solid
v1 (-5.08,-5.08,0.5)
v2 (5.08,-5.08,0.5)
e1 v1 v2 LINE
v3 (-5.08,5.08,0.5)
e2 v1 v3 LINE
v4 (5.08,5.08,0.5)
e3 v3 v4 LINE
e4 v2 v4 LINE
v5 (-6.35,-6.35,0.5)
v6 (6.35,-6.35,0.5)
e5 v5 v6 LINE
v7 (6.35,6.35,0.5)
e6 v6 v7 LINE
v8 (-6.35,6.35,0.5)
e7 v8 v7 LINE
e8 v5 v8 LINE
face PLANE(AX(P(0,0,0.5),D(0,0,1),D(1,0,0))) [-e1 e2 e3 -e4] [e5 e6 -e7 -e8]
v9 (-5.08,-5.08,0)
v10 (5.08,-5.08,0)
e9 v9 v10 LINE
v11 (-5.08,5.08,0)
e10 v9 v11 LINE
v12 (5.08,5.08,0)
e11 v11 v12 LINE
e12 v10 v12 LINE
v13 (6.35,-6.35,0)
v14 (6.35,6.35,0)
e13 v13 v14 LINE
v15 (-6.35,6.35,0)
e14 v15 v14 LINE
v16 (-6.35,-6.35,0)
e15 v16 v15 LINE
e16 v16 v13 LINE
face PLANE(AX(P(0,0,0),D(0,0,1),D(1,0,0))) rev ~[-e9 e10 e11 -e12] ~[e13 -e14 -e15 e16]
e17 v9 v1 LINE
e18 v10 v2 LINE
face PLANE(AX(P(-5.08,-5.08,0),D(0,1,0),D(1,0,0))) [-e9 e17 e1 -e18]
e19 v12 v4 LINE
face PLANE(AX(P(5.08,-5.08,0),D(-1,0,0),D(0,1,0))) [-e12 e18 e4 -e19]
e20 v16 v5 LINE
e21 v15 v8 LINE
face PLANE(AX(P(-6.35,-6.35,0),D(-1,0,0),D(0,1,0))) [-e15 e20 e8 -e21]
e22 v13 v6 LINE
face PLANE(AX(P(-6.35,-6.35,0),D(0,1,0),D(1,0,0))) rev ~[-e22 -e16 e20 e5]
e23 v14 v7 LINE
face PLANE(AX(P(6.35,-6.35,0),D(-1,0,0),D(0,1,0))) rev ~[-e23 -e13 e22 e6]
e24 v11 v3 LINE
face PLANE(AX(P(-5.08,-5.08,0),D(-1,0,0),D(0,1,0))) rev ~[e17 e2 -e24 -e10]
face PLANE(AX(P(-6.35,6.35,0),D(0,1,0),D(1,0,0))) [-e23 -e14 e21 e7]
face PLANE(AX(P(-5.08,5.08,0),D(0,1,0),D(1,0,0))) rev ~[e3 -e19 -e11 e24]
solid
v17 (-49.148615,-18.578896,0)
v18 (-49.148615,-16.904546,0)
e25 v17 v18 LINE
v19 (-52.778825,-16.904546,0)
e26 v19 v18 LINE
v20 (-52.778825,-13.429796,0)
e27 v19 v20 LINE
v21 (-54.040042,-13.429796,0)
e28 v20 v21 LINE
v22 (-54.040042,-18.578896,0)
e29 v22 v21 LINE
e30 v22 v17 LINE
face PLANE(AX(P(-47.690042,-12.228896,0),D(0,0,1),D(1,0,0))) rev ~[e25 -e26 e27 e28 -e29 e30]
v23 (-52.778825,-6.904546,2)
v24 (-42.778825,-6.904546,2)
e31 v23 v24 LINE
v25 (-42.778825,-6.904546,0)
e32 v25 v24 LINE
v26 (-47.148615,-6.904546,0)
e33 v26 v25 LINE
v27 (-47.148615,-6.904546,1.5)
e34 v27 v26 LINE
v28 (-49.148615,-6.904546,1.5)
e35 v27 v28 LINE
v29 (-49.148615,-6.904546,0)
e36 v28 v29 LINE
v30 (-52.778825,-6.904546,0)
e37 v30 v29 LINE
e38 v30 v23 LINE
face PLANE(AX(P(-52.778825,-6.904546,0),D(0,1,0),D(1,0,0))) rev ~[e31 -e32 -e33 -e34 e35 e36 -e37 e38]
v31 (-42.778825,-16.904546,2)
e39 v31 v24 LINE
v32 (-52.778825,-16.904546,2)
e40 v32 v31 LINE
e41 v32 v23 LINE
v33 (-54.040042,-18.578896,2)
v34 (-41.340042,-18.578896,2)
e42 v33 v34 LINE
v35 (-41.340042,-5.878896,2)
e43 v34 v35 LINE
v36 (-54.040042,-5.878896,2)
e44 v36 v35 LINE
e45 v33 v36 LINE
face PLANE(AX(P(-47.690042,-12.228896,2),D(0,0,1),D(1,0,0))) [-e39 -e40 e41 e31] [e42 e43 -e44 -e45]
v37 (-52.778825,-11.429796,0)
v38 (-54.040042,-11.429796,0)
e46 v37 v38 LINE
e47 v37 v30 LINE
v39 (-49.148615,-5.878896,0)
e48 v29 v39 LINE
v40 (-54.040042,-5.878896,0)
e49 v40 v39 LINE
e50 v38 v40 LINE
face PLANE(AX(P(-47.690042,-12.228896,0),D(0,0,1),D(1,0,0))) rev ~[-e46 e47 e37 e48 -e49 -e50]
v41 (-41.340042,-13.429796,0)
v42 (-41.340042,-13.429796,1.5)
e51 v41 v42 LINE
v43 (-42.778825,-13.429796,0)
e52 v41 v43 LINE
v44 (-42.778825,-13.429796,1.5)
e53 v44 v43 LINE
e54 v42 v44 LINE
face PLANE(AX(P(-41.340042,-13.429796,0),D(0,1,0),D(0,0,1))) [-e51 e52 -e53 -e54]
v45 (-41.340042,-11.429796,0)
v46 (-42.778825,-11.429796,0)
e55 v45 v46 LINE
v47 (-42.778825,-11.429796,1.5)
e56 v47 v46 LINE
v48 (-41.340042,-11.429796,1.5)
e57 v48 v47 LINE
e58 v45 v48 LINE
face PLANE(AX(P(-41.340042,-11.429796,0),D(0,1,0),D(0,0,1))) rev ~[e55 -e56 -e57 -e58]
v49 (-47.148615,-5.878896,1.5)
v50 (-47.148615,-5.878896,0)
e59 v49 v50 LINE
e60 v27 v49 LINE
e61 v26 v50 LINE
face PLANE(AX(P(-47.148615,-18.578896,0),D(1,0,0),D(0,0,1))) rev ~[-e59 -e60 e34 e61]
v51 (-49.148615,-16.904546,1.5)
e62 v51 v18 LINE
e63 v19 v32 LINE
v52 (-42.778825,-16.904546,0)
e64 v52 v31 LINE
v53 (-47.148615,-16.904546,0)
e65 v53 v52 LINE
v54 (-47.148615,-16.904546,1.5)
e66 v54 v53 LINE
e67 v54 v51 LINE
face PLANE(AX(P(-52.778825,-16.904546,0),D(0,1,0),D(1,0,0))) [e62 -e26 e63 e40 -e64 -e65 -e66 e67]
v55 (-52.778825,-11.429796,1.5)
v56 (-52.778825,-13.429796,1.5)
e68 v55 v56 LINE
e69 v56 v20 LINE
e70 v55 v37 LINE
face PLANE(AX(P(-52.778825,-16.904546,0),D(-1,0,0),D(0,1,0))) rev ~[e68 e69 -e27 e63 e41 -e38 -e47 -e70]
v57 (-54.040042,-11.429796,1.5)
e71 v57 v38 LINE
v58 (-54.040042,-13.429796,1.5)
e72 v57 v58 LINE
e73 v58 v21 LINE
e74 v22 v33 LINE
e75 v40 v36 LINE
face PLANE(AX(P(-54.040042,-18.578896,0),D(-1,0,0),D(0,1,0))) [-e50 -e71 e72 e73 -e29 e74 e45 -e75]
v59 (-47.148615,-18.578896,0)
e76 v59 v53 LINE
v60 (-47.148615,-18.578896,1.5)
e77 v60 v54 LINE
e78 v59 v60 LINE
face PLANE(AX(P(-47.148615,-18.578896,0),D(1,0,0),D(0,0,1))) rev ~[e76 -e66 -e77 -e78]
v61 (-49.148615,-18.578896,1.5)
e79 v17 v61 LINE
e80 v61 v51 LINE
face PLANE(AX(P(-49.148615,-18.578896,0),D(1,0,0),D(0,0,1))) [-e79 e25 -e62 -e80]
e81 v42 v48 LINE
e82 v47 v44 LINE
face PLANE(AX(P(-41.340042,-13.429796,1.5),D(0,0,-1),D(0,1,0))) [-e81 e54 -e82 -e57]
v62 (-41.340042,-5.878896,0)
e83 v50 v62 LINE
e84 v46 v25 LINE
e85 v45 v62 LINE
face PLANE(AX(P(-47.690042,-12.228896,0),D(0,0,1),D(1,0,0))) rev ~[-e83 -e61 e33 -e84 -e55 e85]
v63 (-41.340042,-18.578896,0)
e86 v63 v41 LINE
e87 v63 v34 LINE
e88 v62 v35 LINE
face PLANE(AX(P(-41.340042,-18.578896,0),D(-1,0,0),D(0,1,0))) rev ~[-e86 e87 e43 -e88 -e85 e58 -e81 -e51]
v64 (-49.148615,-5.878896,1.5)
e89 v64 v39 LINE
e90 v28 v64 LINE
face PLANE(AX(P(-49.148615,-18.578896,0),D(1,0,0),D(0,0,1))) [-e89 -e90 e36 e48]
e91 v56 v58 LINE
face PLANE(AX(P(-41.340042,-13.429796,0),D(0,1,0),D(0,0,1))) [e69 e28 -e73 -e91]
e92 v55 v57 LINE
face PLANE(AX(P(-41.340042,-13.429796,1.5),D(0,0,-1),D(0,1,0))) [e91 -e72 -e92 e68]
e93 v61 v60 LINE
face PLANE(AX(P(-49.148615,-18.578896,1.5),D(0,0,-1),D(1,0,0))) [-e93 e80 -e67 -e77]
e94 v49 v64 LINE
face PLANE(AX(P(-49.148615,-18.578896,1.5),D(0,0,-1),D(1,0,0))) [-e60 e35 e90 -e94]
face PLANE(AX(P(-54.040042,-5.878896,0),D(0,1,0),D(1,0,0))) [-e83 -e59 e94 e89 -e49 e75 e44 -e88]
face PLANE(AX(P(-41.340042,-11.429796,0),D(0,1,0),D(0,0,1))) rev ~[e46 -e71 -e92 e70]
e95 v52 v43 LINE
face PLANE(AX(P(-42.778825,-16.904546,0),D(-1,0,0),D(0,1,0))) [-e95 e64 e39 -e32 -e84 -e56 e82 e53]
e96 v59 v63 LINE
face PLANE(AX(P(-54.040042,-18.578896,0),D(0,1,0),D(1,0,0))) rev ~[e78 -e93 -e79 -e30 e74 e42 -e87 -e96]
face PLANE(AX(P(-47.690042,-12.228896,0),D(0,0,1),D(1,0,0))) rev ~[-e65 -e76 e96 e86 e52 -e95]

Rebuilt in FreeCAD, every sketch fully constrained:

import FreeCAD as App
import Part
import Sketcher

V = App.Vector


def add_polygon(sketch, points):
    """Adds a closed chain of lines whose ends are joined by coincident constraints."""
    first, n = sketch.GeometryCount, len(points)
    for a, b in zip(points, points[1:] + points[:1]):
        sketch.addGeometry(Part.LineSegment(App.Vector(*a, 0), App.Vector(*b, 0)), False)
    for i in range(n):
        sketch.addConstraint(Sketcher.Constraint("Coincident", first + i, 2, first + (i + 1) % n, 1))

doc = App.newDocument("Part")
params = doc.addObject("Spreadsheet::Sheet", "Params")
for row, (alias, value) in enumerate([
    ("sketch1_width", "12.7 mm"),
    ("sketch1_width2", "10.16 mm"),
    ("pad1_length", "0.5 mm"),
    ("sketch2_width", "10 mm"),
    ("sketch2_width2", "12.7 mm"),
    ("pad2_length", "2 mm"),
    ("sketch3_width", "2 mm"),
    ("sketch3_height", "1.5 mm"),
    ("pocket1_length", "25 mm"),
    ("sketch4_width", "2 mm"),
    ("sketch4_height", "1.5 mm"),
    ("pocket2_length", "25 mm"),
], start=1):
    params.set(f"A{row}", alias)
    params.set(f"B{row}", "=" + value)
    params.setAlias(f"B{row}", alias)

body = doc.addObject("PartDesign::Body", "Body")

# Sketch on XY plane
sketch1 = body.newObject("Sketcher::SketchObject", "Sketch")
sketch1.AttachmentSupport = (doc.getObject("XY_Plane"), [""])
sketch1.MapMode = "FlatFace"
add_polygon(sketch1, [(-6.35, 6.35), (-6.35, -6.35), (6.35, -6.35), (6.35, 6.35)])  # lines 0-3
add_polygon(sketch1, [(5.08, -5.08), (-5.08, -5.08), (-5.08, 5.08), (5.08, 5.08)])  # lines 4-7
sketch1.addConstraint([
    Sketcher.Constraint("Vertical", 0),
    Sketcher.Constraint("Horizontal", 1),
    Sketcher.Constraint("Vertical", 2),
    Sketcher.Constraint("Horizontal", 3),
    Sketcher.Constraint("Horizontal", 4),
    Sketcher.Constraint("Vertical", 5),
    Sketcher.Constraint("Horizontal", 6),
    Sketcher.Constraint("Vertical", 7),
    Sketcher.Constraint("Symmetric", 0, 2, 2, 2, -1, 1),
    Sketcher.Constraint("Symmetric", 4, 2, 6, 2, -1, 1),
    Sketcher.Constraint("Equal", 3, 0),
    Sketcher.Constraint("Equal", 6, 5),
    Sketcher.Constraint("DistanceX", 1, 1, 1, 2, 12.7),
    Sketcher.Constraint("DistanceX", 4, 2, 4, 1, 10.16),
])
sketch1.setExpression("Constraints[20]", "Params.sketch1_width")
sketch1.setExpression("Constraints[21]", "Params.sketch1_width2")
pad1 = body.newObject("PartDesign::Pad", "Pad")
pad1.Profile = sketch1
pad1.setExpression("Length", "Params.pad1_length")
body2 = doc.addObject("PartDesign::Body", "Body001")

# Sketch on XY plane
sketch2 = body2.newObject("Sketcher::SketchObject", "Sketch001")
sketch2.AttachmentSupport = (doc.getObject("XY_Plane001"), [""])
sketch2.MapMode = "FlatFace"
add_polygon(sketch2, [(-54.040042, -5.878896), (-54.040042, -18.578896), (-41.340042, -18.578896), (-41.340042, -5.878896)])  # lines 0-3
add_polygon(sketch2, [(-42.778825, -16.904546), (-52.778825, -16.904546), (-52.778825, -6.904546), (-42.778825, -6.904546)])  # lines 4-7
sketch2.addConstraint([
    Sketcher.Constraint("Vertical", 0),
    Sketcher.Constraint("Horizontal", 1),
    Sketcher.Constraint("Vertical", 2),
    Sketcher.Constraint("Horizontal", 3),
    Sketcher.Constraint("Horizontal", 4),
    Sketcher.Constraint("Vertical", 5),
    Sketcher.Constraint("Horizontal", 6),
    Sketcher.Constraint("Vertical", 7),
    Sketcher.Constraint("Equal", 3, 0),
    Sketcher.Constraint("Equal", 6, 5),
    Sketcher.Constraint("DistanceX", 4, 2, 4, 1, 10.0),
    Sketcher.Constraint("DistanceX", 1, 1, 1, 2, 12.7),
    Sketcher.Constraint("DistanceX", 1, 2, -1, 1, 41.340042),
    Sketcher.Constraint("DistanceY", 0, 2, 4, 2, 1.67435),
    Sketcher.Constraint("DistanceY", 0, 2, -1, 1, 18.578896),
    Sketcher.Constraint("DistanceX", 4, 2, -1, 1, 52.778825),
])
sketch2.setExpression("Constraints[18]", "Params.sketch2_width")
sketch2.setExpression("Constraints[19]", "Params.sketch2_width2")
pad2 = body2.newObject("PartDesign::Pad", "Pad001")
pad2.Profile = sketch2
pad2.setExpression("Length", "Params.pad2_length")

# Sketch on YZ plane
sketch3 = body2.newObject("Sketcher::SketchObject", "Sketch002")
sketch3.AttachmentSupport = (doc.getObject("YZ_Plane001"), [""])
sketch3.MapMode = "FlatFace"
sketch3.AttachmentOffset = App.Placement(V(0, 0, -41.340042), App.Rotation())
add_polygon(sketch3, [(-13.429796, 1.5), (-13.429796, 0), (-11.429796, 0), (-11.429796, 1.5)])  # lines 0-3
sketch3.addConstraint([
    Sketcher.Constraint("Vertical", 0),
    Sketcher.Constraint("Horizontal", 1),
    Sketcher.Constraint("Vertical", 2),
    Sketcher.Constraint("Horizontal", 3),
    Sketcher.Constraint("PointOnObject", 0, 2, -1),
    Sketcher.Constraint("DistanceX", 1, 1, 1, 2, 2.0),
    Sketcher.Constraint("DistanceY", 0, 2, 0, 1, 1.5),
    Sketcher.Constraint("DistanceX", 0, 2, -1, 1, 13.429796),
])
sketch3.setExpression("Constraints[9]", "Params.sketch3_width")
sketch3.setExpression("Constraints[10]", "Params.sketch3_height")
pocket1 = body2.newObject("PartDesign::Pocket", "Pocket")
pocket1.Profile = sketch3
pocket1.setExpression("Length", "Params.pocket1_length")

# Sketch on XZ plane
sketch4 = body2.newObject("Sketcher::SketchObject", "Sketch003")
sketch4.AttachmentSupport = (doc.getObject("XZ_Plane001"), [""])
sketch4.MapMode = "FlatFace"
sketch4.AttachmentOffset = App.Placement(V(0, 0, 18.578896), App.Rotation())
add_polygon(sketch4, [(-49.148615, 1.5), (-49.148615, 0), (-47.148615, 0), (-47.148615, 1.5)])  # lines 0-3
sketch4.addConstraint([
    Sketcher.Constraint("Vertical", 0),
    Sketcher.Constraint("Horizontal", 1),
    Sketcher.Constraint("Vertical", 2),
    Sketcher.Constraint("Horizontal", 3),
    Sketcher.Constraint("PointOnObject", 0, 2, -1),
    Sketcher.Constraint("DistanceX", 1, 1, 1, 2, 2.0),
    Sketcher.Constraint("DistanceY", 0, 2, 0, 1, 1.5),
    Sketcher.Constraint("DistanceX", 0, 2, -1, 1, 49.148615),
])
sketch4.setExpression("Constraints[9]", "Params.sketch4_width")
sketch4.setExpression("Constraints[10]", "Params.sketch4_height")
pocket2 = body2.newObject("PartDesign::Pocket", "Pocket001")
pocket2.Profile = sketch4
pocket2.setExpression("Length", "Params.pocket2_length")

doc.recompute()
